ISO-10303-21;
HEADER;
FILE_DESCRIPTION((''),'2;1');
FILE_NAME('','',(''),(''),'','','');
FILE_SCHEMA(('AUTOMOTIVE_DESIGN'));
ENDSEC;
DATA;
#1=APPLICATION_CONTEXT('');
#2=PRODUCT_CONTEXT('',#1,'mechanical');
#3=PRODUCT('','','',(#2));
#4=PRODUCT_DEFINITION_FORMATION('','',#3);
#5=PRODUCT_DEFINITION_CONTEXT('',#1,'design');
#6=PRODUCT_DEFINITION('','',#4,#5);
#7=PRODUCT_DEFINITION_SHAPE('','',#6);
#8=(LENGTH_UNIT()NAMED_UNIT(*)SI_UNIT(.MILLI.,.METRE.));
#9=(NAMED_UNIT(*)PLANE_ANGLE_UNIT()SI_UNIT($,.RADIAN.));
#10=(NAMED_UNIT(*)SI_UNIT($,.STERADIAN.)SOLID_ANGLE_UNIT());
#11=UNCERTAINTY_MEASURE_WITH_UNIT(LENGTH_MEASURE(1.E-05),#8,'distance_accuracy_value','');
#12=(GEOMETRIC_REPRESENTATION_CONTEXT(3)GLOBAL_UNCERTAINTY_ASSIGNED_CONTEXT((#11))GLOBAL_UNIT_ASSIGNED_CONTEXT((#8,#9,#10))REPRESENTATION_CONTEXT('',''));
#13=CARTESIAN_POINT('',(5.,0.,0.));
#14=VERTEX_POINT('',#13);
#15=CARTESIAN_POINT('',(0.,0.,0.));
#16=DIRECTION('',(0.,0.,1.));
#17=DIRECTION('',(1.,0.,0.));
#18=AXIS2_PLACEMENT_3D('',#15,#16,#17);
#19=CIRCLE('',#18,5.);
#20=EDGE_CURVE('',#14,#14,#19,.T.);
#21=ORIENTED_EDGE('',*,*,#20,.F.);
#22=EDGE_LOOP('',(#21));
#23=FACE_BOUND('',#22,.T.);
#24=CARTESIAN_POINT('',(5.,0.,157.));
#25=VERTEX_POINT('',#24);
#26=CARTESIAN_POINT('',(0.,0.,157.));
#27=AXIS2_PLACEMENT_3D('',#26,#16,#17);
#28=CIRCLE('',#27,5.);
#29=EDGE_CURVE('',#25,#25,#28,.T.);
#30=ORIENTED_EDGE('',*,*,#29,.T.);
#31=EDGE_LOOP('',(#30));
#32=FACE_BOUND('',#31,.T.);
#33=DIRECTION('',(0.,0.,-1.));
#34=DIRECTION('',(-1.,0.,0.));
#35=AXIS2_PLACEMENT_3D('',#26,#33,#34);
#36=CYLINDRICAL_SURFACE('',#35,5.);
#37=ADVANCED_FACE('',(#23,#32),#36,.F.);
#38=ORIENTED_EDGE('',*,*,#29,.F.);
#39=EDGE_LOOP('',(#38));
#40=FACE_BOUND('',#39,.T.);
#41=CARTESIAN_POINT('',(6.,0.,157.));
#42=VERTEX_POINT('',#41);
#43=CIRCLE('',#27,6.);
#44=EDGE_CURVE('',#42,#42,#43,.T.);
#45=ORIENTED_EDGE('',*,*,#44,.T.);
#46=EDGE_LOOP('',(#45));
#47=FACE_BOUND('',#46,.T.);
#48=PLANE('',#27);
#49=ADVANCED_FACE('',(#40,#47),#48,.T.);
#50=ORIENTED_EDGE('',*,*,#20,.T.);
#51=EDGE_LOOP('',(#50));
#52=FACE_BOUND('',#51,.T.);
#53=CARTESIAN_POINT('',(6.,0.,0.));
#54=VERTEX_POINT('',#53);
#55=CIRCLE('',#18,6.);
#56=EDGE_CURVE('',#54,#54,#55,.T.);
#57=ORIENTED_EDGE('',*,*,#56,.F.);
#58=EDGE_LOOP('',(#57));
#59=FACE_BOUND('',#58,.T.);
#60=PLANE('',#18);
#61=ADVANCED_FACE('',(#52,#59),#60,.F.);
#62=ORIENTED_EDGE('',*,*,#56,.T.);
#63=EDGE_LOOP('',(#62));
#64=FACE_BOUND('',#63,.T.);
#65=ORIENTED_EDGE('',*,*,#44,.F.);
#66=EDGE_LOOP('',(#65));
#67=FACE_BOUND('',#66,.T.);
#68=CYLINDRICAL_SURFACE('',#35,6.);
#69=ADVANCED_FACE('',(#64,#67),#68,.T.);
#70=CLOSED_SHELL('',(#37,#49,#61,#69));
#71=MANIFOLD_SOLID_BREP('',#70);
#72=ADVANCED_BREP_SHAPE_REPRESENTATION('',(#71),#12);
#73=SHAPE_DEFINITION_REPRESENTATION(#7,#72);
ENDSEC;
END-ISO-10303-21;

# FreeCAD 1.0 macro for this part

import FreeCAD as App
import Part
import Sketcher
from FreeCAD import Vector
Q = App.Units.Quantity

doc = App.newDocument("Part")
body = doc.addObject("PartDesign::Body", "Body")

# Sketch on XY plane
sketch1 = doc.addObject("Sketcher::SketchObject", "Sketch")
body.addObject(sketch1)
sketch1.AttachmentSupport = (doc.XY_Plane, [""])
sketch1.MapMode = "FlatFace"
sketch1.addGeometry(Part.Circle(Vector(0, 0, 0), Vector(0, 0, 1), 6), False)
sketch1.addGeometry(Part.Circle(Vector(0, 0, 0), Vector(0, 0, 1), 5), False)
sketch1.addConstraint(Sketcher.Constraint("Coincident", 0, 3, -1, 1))
sketch1.addConstraint(Sketcher.Constraint("Coincident", 1, 3, -1, 1))
sketch1.addConstraint(Sketcher.Constraint("Diameter", 0, Q("12 mm")))
sketch1.addConstraint(Sketcher.Constraint("Diameter", 1, Q("10 mm")))
pad1 = doc.addObject("PartDesign::Pad", "Pad")
body.addObject(pad1)
pad1.Profile = sketch1
pad1.Length = 157

doc.recompute()
